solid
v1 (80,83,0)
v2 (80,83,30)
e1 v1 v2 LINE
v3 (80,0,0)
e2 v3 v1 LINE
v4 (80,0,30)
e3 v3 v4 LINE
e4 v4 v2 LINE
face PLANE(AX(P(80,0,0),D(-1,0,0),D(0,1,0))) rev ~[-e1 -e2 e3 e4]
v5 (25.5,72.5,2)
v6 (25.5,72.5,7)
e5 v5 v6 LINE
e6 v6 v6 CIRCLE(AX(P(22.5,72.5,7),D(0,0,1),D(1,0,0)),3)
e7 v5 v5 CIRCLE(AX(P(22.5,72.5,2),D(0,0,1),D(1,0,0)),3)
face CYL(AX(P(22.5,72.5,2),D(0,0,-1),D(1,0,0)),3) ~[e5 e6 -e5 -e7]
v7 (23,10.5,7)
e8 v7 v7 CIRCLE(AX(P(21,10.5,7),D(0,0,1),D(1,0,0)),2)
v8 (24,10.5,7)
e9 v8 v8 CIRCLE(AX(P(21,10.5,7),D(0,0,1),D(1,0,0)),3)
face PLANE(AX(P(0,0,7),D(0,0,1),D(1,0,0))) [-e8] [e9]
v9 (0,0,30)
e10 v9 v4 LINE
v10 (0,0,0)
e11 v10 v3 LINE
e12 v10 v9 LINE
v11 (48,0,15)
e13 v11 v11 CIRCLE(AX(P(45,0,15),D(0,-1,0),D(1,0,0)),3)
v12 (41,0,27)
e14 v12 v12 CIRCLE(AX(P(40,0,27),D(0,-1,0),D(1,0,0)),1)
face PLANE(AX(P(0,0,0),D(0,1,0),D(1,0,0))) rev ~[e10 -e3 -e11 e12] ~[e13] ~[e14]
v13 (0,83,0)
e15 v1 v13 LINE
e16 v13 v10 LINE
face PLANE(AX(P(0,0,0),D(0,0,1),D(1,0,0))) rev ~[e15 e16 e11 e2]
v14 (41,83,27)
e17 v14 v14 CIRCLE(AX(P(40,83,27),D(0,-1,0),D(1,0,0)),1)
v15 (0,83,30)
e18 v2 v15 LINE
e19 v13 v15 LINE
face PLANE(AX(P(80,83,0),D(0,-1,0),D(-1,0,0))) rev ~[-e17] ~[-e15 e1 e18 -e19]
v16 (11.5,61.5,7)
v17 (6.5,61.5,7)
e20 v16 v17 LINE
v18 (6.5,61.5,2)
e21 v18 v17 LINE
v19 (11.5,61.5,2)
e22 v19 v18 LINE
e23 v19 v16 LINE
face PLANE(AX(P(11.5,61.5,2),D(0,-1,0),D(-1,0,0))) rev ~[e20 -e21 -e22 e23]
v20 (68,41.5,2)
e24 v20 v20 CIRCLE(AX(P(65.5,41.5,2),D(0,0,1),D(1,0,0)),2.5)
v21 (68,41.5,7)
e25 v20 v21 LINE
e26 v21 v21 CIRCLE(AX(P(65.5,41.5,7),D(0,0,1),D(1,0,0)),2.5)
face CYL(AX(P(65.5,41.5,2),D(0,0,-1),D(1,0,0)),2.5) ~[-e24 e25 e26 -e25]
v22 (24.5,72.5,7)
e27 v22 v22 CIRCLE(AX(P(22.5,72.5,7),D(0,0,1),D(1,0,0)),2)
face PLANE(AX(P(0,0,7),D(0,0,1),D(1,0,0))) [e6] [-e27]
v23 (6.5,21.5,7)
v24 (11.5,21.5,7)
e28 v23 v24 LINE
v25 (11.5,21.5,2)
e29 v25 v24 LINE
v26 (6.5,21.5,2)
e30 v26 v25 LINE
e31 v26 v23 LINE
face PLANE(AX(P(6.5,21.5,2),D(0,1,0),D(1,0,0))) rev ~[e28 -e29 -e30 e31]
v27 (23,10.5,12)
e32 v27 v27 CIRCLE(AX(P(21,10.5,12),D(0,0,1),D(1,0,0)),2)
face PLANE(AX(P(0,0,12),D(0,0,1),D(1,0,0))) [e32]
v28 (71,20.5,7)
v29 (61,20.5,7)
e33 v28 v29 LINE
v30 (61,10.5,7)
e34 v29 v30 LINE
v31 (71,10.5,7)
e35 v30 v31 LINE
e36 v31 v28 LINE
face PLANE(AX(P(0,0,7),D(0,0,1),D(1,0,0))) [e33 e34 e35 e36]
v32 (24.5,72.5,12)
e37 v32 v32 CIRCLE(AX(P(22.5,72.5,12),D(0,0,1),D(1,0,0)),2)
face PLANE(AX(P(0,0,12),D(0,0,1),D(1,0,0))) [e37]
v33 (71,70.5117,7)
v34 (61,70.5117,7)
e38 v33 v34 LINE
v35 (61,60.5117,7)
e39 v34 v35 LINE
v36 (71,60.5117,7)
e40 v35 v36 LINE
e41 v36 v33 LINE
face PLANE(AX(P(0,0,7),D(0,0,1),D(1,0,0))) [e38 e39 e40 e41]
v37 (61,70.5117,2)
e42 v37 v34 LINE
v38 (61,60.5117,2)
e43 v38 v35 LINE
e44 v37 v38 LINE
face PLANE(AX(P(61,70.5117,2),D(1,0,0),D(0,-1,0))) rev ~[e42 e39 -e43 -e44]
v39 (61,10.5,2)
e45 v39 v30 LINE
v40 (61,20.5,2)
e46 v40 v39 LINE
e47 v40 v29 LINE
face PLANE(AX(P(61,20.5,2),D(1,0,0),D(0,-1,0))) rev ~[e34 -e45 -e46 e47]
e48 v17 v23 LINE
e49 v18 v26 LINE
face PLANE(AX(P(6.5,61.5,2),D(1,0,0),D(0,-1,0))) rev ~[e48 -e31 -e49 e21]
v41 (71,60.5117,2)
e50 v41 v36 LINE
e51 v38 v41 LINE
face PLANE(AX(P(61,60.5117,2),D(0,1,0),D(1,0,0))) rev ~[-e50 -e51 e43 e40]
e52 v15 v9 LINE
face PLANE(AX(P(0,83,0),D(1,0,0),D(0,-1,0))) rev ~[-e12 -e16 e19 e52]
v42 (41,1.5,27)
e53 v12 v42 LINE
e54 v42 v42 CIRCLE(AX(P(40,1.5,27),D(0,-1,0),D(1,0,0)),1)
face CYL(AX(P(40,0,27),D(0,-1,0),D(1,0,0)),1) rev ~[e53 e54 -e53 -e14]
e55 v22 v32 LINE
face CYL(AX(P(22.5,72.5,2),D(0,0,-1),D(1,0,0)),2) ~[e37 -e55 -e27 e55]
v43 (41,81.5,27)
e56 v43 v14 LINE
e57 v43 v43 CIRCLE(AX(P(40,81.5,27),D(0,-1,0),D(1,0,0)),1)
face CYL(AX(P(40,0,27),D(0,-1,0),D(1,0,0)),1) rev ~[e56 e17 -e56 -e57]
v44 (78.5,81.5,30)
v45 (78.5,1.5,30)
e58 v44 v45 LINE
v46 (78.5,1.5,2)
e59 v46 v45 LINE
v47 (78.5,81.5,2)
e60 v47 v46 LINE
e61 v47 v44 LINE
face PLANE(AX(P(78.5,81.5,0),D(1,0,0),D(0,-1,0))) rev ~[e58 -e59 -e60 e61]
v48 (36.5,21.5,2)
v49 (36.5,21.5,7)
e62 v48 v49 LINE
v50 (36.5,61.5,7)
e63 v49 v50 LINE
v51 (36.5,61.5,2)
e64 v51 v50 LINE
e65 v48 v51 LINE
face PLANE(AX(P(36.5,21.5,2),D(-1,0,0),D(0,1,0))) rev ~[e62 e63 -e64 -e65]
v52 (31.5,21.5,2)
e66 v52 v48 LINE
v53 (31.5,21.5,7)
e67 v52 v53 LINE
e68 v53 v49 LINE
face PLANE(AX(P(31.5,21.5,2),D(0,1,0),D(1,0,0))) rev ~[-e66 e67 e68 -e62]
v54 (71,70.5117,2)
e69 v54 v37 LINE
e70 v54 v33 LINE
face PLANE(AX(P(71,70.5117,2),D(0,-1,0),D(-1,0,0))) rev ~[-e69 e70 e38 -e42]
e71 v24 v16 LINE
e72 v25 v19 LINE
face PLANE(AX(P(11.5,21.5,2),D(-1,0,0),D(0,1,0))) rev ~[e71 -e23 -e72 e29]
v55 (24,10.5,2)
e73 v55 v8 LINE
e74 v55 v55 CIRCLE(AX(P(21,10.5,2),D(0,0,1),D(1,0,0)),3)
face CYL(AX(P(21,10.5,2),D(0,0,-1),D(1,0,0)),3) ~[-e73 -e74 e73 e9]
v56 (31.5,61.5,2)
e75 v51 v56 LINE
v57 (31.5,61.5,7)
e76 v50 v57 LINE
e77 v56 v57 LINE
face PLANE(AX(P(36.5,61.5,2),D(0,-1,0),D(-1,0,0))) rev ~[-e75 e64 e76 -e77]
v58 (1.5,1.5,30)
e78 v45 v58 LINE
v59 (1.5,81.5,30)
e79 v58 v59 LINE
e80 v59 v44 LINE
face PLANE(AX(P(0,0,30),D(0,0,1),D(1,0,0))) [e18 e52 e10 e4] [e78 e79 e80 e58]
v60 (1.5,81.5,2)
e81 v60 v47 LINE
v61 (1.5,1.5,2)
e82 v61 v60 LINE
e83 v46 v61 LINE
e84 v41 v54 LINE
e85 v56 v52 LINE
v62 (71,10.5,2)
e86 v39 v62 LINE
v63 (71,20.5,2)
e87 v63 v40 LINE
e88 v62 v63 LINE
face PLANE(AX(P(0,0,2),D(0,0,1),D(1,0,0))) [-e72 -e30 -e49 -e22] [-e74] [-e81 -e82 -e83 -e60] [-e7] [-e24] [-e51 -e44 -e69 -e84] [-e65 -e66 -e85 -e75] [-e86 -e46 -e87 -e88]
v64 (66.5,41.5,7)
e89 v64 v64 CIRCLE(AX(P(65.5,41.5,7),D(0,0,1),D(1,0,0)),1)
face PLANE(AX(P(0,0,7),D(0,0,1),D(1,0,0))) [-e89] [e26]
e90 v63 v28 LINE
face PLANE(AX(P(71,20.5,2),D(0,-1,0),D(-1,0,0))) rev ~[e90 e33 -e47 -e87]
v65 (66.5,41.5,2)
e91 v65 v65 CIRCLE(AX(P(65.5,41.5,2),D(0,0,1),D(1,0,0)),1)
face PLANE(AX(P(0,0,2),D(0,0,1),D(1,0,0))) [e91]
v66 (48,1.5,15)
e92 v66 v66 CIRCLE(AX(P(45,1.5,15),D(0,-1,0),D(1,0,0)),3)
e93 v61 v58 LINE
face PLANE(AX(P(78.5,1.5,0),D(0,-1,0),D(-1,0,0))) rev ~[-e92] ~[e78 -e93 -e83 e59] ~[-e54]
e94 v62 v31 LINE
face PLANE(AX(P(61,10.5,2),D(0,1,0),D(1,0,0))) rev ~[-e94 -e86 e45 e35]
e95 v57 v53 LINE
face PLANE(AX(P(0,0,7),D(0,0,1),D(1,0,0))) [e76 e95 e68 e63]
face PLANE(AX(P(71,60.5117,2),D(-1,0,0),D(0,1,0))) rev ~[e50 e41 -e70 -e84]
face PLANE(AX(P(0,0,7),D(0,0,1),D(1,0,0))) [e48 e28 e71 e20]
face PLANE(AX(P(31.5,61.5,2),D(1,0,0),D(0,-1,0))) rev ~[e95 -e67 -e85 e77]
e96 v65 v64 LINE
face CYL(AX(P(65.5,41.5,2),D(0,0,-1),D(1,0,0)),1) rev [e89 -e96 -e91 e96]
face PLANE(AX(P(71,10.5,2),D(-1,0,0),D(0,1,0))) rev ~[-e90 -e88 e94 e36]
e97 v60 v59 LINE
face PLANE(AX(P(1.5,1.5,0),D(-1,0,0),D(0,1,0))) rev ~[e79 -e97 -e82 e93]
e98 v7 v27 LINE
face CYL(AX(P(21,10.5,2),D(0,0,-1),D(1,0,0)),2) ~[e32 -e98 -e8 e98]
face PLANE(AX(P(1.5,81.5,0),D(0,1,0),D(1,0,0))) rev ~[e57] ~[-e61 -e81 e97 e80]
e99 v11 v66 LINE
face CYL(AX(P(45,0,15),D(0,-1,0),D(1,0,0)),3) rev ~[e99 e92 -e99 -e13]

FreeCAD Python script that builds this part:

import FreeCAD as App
import Part
import Sketcher

doc = App.newDocument("Part")
body = doc.addObject("PartDesign::Body", "Body")

# Sketch on XY plane
sketch1 = body.newObject("Sketcher::SketchObject", "Sketch")
sketch1.AttachmentSupport = (doc.getObject("XY_Plane"), [""])
sketch1.MapMode = "FlatFace"
sketch1.addGeometry(Part.LineSegment(App.Vector(78.5, 81.5, 0), App.Vector(1.5, 81.5, 0)), False)
sketch1.addGeometry(Part.LineSegment(App.Vector(1.5, 81.5, 0), App.Vector(1.5, 1.5, 0)), False)
sketch1.addGeometry(Part.LineSegment(App.Vector(1.5, 1.5, 0), App.Vector(78.5, 1.5, 0)), False)
sketch1.addGeometry(Part.LineSegment(App.Vector(78.5, 1.5, 0), App.Vector(78.5, 81.5, 0)), False)
sketch1.addConstraint(Sketcher.Constraint("Coincident", 0, 2, 1, 1))
sketch1.addConstraint(Sketcher.Constraint("Coincident", 1, 2, 2, 1))
sketch1.addConstraint(Sketcher.Constraint("Coincident", 2, 2, 3, 1))
sketch1.addConstraint(Sketcher.Constraint("Coincident", 3, 2, 0, 1))
sketch1.addConstraint(Sketcher.Constraint("Horizontal", 0))
sketch1.addConstraint(Sketcher.Constraint("Vertical", 1))
sketch1.addConstraint(Sketcher.Constraint("Horizontal", 2))
sketch1.addConstraint(Sketcher.Constraint("Vertical", 3))
sketch1.addConstraint(Sketcher.Constraint("DistanceY", 1, 2, 1, 1, 80.0))
sketch1.addConstraint(Sketcher.Constraint("DistanceX", -1, 1, 0, 2, 1.5))
sketch1.addConstraint(Sketcher.Constraint("DistanceY", -1, 1, 1, 2, 1.5))
sketch1.addConstraint(Sketcher.Constraint("DistanceX", 0, 2, 0, 1, 77.0))
pad1 = body.newObject("PartDesign::Pad", "Pad")
pad1.Profile = sketch1
pad1.Length = 2

# Sketch on XY plane
sketch2 = body.newObject("Sketcher::SketchObject", "Sketch001")
sketch2.AttachmentSupport = (doc.getObject("XY_Plane"), [""])
sketch2.MapMode = "FlatFace"
sketch2.addGeometry(Part.LineSegment(App.Vector(0, 83, 0), App.Vector(0, 0, 0)), False)
sketch2.addGeometry(Part.LineSegment(App.Vector(0, 0, 0), App.Vector(80, 0, 0)), False)
sketch2.addGeometry(Part.LineSegment(App.Vector(80, 0, 0), App.Vector(80, 83, 0)), False)
sketch2.addGeometry(Part.LineSegment(App.Vector(80, 83, 0), App.Vector(0, 83, 0)), False)
sketch2.addGeometry(Part.LineSegment(App.Vector(1.5, 1.5, 0), App.Vector(1.5, 81.5, 0)), False)
sketch2.addGeometry(Part.LineSegment(App.Vector(1.5, 81.5, 0), App.Vector(78.5, 81.5, 0)), False)
sketch2.addGeometry(Part.LineSegment(App.Vector(78.5, 81.5, 0), App.Vector(78.5, 1.5, 0)), False)
sketch2.addGeometry(Part.LineSegment(App.Vector(78.5, 1.5, 0), App.Vector(1.5, 1.5, 0)), False)
sketch2.addConstraint(Sketcher.Constraint("Coincident", 0, 2, 1, 1))
sketch2.addConstraint(Sketcher.Constraint("Coincident", 1, 2, 2, 1))
sketch2.addConstraint(Sketcher.Constraint("Coincident", 2, 2, 3, 1))
sketch2.addConstraint(Sketcher.Constraint("Coincident", 3, 2, 0, 1))
sketch2.addConstraint(Sketcher.Constraint("Coincident", 4, 2, 5, 1))
sketch2.addConstraint(Sketcher.Constraint("Coincident", 5, 2, 6, 1))
sketch2.addConstraint(Sketcher.Constraint("Coincident", 6, 2, 7, 1))
sketch2.addConstraint(Sketcher.Constraint("Coincident", 7, 2, 4, 1))
sketch2.addConstraint(Sketcher.Constraint("Vertical", 0))
sketch2.addConstraint(Sketcher.Constraint("Horizontal", 1))
sketch2.addConstraint(Sketcher.Constraint("Vertical", 2))
sketch2.addConstraint(Sketcher.Constraint("Horizontal", 3))
sketch2.addConstraint(Sketcher.Constraint("Vertical", 4))
sketch2.addConstraint(Sketcher.Constraint("Horizontal", 5))
sketch2.addConstraint(Sketcher.Constraint("Vertical", 6))
sketch2.addConstraint(Sketcher.Constraint("Horizontal", 7))
sketch2.addConstraint(Sketcher.Constraint("Coincident", 0, 2, -1, 1))
sketch2.addConstraint(Sketcher.Constraint("Equal", 3, 4))
sketch2.addConstraint(Sketcher.Constraint("DistanceX", 1, 1, 1, 2, 80.0))
sketch2.addConstraint(Sketcher.Constraint("DistanceY", 0, 2, 0, 1, 83.0))
sketch2.addConstraint(Sketcher.Constraint("DistanceX", -1, 1, 4, 2, 1.5))
sketch2.addConstraint(Sketcher.Constraint("DistanceY", -1, 1, 6, 2, 1.5))
sketch2.addConstraint(Sketcher.Constraint("DistanceX", 5, 2, 2, 2, 1.5))
pad2 = body.newObject("PartDesign::Pad", "Pad001")
pad2.Profile = sketch2
pad2.Length = 30

# Sketch on XY plane
sketch3 = body.newObject("Sketcher::SketchObject", "Sketch002")
sketch3.AttachmentSupport = (doc.getObject("XY_Plane"), [""])
sketch3.MapMode = "FlatFace"
sketch3.AttachmentOffset = App.Placement(App.Vector(0, 0, 2), App.Rotation())
sketch3.addGeometry(Part.Circle(App.Vector(22.5, 72.5, 0), App.Vector(0, 0, 1), 3), False)
sketch3.addGeometry(Part.Circle(App.Vector(22.5, 72.5, 0), App.Vector(0, 0, 1), 2), False)
sketch3.addGeometry(Part.Circle(App.Vector(21, 10.5, 0), App.Vector(0, 0, 1), 3), False)
sketch3.addGeometry(Part.Circle(App.Vector(21, 10.5, 0), App.Vector(0, 0, 1), 2), False)
sketch3.addGeometry(Part.Circle(App.Vector(65.5, 41.5, 0), App.Vector(0, 0, 1), 2.5), False)
sketch3.addGeometry(Part.Circle(App.Vector(65.5, 41.5, 0), App.Vector(0, 0, 1), 1), False)
sketch3.addGeometry(Part.LineSegment(App.Vector(31.5, 61.5, 0), App.Vector(31.5, 21.5, 0)), False)
sketch3.addGeometry(Part.LineSegment(App.Vector(31.5, 21.5, 0), App.Vector(36.5, 21.5, 0)), False)
sketch3.addGeometry(Part.LineSegment(App.Vector(36.5, 21.5, 0), App.Vector(36.5, 61.5, 0)), False)
sketch3.addGeometry(Part.LineSegment(App.Vector(36.5, 61.5, 0), App.Vector(31.5, 61.5, 0)), False)
sketch3.addGeometry(Part.LineSegment(App.Vector(6.5, 61.5, 0), App.Vector(6.5, 21.5, 0)), False)
sketch3.addGeometry(Part.LineSegment(App.Vector(6.5, 21.5, 0), App.Vector(11.5, 21.5, 0)), False)
sketch3.addGeometry(Part.LineSegment(App.Vector(11.5, 21.5, 0), App.Vector(11.5, 61.5, 0)), False)
sketch3.addGeometry(Part.LineSegment(App.Vector(11.5, 61.5, 0), App.Vector(6.5, 61.5, 0)), False)
sketch3.addGeometry(Part.LineSegment(App.Vector(61, 20.5, 0), App.Vector(61, 10.5, 0)), False)
sketch3.addGeometry(Part.LineSegment(App.Vector(61, 10.5, 0), App.Vector(71, 10.5, 0)), False)
sketch3.addGeometry(Part.LineSegment(App.Vector(71, 10.5, 0), App.Vector(71, 20.5, 0)), False)
sketch3.addGeometry(Part.LineSegment(App.Vector(71, 20.5, 0), App.Vector(61, 20.5, 0)), False)
sketch3.addGeometry(Part.LineSegment(App.Vector(61, 70.5117, 0), App.Vector(61, 60.5117, 0)), False)
sketch3.addGeometry(Part.LineSegment(App.Vector(61, 60.5117, 0), App.Vector(71, 60.5117, 0)), False)
sketch3.addGeometry(Part.LineSegment(App.Vector(71, 60.5117, 0), App.Vector(71, 70.5117, 0)), False)
sketch3.addGeometry(Part.LineSegment(App.Vector(71, 70.5117, 0), App.Vector(61, 70.5117, 0)), False)
sketch3.addConstraint(Sketcher.Constraint("Coincident", 6, 2, 7, 1))
sketch3.addConstraint(Sketcher.Constraint("Coincident", 7, 2, 8, 1))
sketch3.addConstraint(Sketcher.Constraint("Coincident", 8, 2, 9, 1))
sketch3.addConstraint(Sketcher.Constraint("Coincident", 9, 2, 6, 1))
sketch3.addConstraint(Sketcher.Constraint("Coincident", 10, 2, 11, 1))
sketch3.addConstraint(Sketcher.Constraint("Coincident", 11, 2, 12, 1))
sketch3.addConstraint(Sketcher.Constraint("Coincident", 12, 2, 13, 1))
sketch3.addConstraint(Sketcher.Constraint("Coincident", 13, 2, 10, 1))
sketch3.addConstraint(Sketcher.Constraint("Coincident", 14, 2, 15, 1))
sketch3.addConstraint(Sketcher.Constraint("Coincident", 15, 2, 16, 1))
sketch3.addConstraint(Sketcher.Constraint("Coincident", 16, 2, 17, 1))
sketch3.addConstraint(Sketcher.Constraint("Coincident", 17, 2, 14, 1))
sketch3.addConstraint(Sketcher.Constraint("Coincident", 18, 2, 19, 1))
sketch3.addConstraint(Sketcher.Constraint("Coincident", 19, 2, 20, 1))
sketch3.addConstraint(Sketcher.Constraint("Coincident", 20, 2, 21, 1))
sketch3.addConstraint(Sketcher.Constraint("Coincident", 21, 2, 18, 1))
sketch3.addConstraint(Sketcher.Constraint("Vertical", 6))
sketch3.addConstraint(Sketcher.Constraint("Horizontal", 7))
sketch3.addConstraint(Sketcher.Constraint("Vertical", 8))
sketch3.addConstraint(Sketcher.Constraint("Horizontal", 9))
sketch3.addConstraint(Sketcher.Constraint("Vertical", 10))
sketch3.addConstraint(Sketcher.Constraint("Horizontal", 11))
sketch3.addConstraint(Sketcher.Constraint("Vertical", 12))
sketch3.addConstraint(Sketcher.Constraint("Horizontal", 13))
sketch3.addConstraint(Sketcher.Constraint("Vertical", 14))
sketch3.addConstraint(Sketcher.Constraint("Horizontal", 15))
sketch3.addConstraint(Sketcher.Constraint("Vertical", 16))
sketch3.addConstraint(Sketcher.Constraint("Horizontal", 17))
sketch3.addConstraint(Sketcher.Constraint("Vertical", 18))
sketch3.addConstraint(Sketcher.Constraint("Horizontal", 19))
sketch3.addConstraint(Sketcher.Constraint("Vertical", 20))
sketch3.addConstraint(Sketcher.Constraint("Horizontal", 21))
sketch3.addConstraint(Sketcher.Constraint("Coincident", 1, 3, 0, 3))
sketch3.addConstraint(Sketcher.Constraint("Coincident", 3, 3, 2, 3))
sketch3.addConstraint(Sketcher.Constraint("Coincident", 5, 3, 4, 3))
sketch3.addConstraint(Sketcher.Constraint("Equal", 0, 2))
sketch3.addConstraint(Sketcher.Constraint("Equal", 1, 3))
sketch3.addConstraint(Sketcher.Constraint("Horizontal", 7, 2, 10, 2))
sketch3.addConstraint(Sketcher.Constraint("Horizontal", 9, 2, 12, 2))
sketch3.addConstraint(Sketcher.Constraint("Horizontal", 3, 3, 14, 2))
sketch3.addConstraint(Sketcher.Constraint("Vertical", 17, 2, 18, 2))
sketch3.addConstraint(Sketcher.Constraint("Vertical", 16, 2, 19, 2))
sketch3.addConstraint(Sketcher.Constraint("Equal", 9, 11))
sketch3.addConstraint(Sketcher.Constraint("Equal", 21, 14))
sketch3.addConstraint(Sketcher.Constraint("Equal", 16, 18))
sketch3.addConstraint(Sketcher.Constraint("Diameter", 0, 6.0))
sketch3.addConstraint(Sketcher.Constraint("Diameter", 1, 4.0))
sketch3.addConstraint(Sketcher.Constraint("Diameter", 4, 5.0))
sketch3.addConstraint(Sketcher.Constraint("Diameter", 5, 2.0))
sketch3.addConstraint(Sketcher.Constraint("DistanceX", 7, 1, 7, 2, 5.0))
sketch3.addConstraint(Sketcher.Constraint("DistanceX", 15, 1, 15, 2, 10.0))
sketch3.addConstraint(Sketcher.Constraint("DistanceY", 6, 2, 6, 1, 40.0))
sketch3.addConstraint(Sketcher.Constraint("DistanceX", -1, 1, 2, 3, 21.0))
sketch3.addConstraint(Sketcher.Constraint("DistanceY", 2, 3, 0, 3, 62.0))
sketch3.addConstraint(Sketcher.Constraint("DistanceY", 6, 2, 4, 3, 20.0))
sketch3.addConstraint(Sketcher.Constraint("DistanceX", 0, 3, 6, 2, 9.0))
sketch3.addConstraint(Sketcher.Constraint("DistanceX", 10, 2, 7, 2, 30.0))
sketch3.addConstraint(Sketcher.Constraint("DistanceX", 2, 3, 14, 2, 40.0))
sketch3.addConstraint(Sketcher.Constraint("DistanceY", 16, 2, 4, 3, 21.0))
sketch3.addConstraint(Sketcher.Constraint("DistanceX", 0, 3, 4, 3, 43.0))
sketch3.addConstraint(Sketcher.Constraint("DistanceX", -1, 1, 0, 3, 22.5))
sketch3.addConstraint(Sketcher.Constraint("DistanceY", -1, 1, 0, 3, 72.5))
sketch3.addConstraint(Sketcher.Constraint("DistanceY", -1, 1, 18, 2, 60.5117))
pad3 = body.newObject("PartDesign::Pad", "Pad002")
pad3.Profile = sketch3
pad3.Length = 5

# Sketch on XY plane
sketch4 = body.newObject("Sketcher::SketchObject", "Sketch003")
sketch4.AttachmentSupport = (doc.getObject("XY_Plane"), [""])
sketch4.MapMode = "FlatFace"
sketch4.AttachmentOffset = App.Placement(App.Vector(0, 0, 2), App.Rotation())
sketch4.addGeometry(Part.Circle(App.Vector(22.5, 72.5, 0), App.Vector(0, 0, 1), 2), False)
sketch4.addGeometry(Part.Circle(App.Vector(21, 10.5, 0), App.Vector(0, 0, 1), 2), False)
sketch4.addConstraint(Sketcher.Constraint("Equal", 0, 1))
sketch4.addConstraint(Sketcher.Constraint("Diameter", 0, 4.0))
sketch4.addConstraint(Sketcher.Constraint("DistanceX", -1, 1, 1, 3, 21.0))
sketch4.addConstraint(Sketcher.Constraint("DistanceY", 1, 3, 0, 3, 62.0))
sketch4.addConstraint(Sketcher.Constraint("DistanceX", -1, 1, 0, 3, 22.5))
sketch4.addConstraint(Sketcher.Constraint("DistanceY", -1, 1, 0, 3, 72.5))
pad4 = body.newObject("PartDesign::Pad", "Pad003")
pad4.Profile = sketch4
pad4.Length = 10

# Sketch on XZ plane
sketch5 = body.newObject("Sketcher::SketchObject", "Sketch004")
sketch5.AttachmentSupport = (doc.getObject("XZ_Plane"), [""])
sketch5.MapMode = "FlatFace"
sketch5.addGeometry(Part.Circle(App.Vector(40, 27, 0), App.Vector(0, 0, 1), 1), False)
sketch5.addConstraint(Sketcher.Constraint("Diameter", 0, 2.0))
sketch5.addConstraint(Sketcher.Constraint("DistanceX", -1, 1, 0, 3, 40.0))
sketch5.addConstraint(Sketcher.Constraint("DistanceY", -1, 1, 0, 3, 27.0))
pocket1 = body.newObject("PartDesign::Pocket", "Pocket")
pocket1.Profile = sketch5
pocket1.Type = "ThroughAll"

# Sketch on XZ plane
sketch6 = body.newObject("Sketcher::SketchObject", "Sketch005")
sketch6.AttachmentSupport = (doc.getObject("XZ_Plane"), [""])
sketch6.MapMode = "FlatFace"
sketch6.addGeometry(Part.Circle(App.Vector(45, 15, 0), App.Vector(0, 0, 1), 3), False)
sketch6.addConstraint(Sketcher.Constraint("Diameter", 0, 6.0))
sketch6.addConstraint(Sketcher.Constraint("DistanceX", -1, 1, 0, 3, 45.0))
sketch6.addConstraint(Sketcher.Constraint("DistanceY", -1, 1, 0, 3, 15.0))
pocket2 = body.newObject("PartDesign::Pocket", "Pocket001")
pocket2.Profile = sketch6
pocket2.Length = 5

doc.recompute()
